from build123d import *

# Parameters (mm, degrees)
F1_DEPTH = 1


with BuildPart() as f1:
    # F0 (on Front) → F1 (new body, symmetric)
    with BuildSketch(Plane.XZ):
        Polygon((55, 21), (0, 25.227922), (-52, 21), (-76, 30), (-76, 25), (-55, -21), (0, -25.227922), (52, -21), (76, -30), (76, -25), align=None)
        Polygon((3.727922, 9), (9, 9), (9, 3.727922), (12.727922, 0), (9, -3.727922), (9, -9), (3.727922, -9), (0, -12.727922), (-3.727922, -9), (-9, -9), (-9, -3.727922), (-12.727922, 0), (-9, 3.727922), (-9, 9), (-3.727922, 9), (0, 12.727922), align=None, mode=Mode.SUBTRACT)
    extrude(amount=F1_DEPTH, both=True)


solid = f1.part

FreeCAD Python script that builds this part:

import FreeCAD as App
import Part
import Sketcher

V = App.Vector
Q = App.Units.Quantity

doc = App.newDocument("Part")
body = doc.addObject("PartDesign::Body", "Body")

# Sketch on XZ plane
sketch1 = doc.addObject("Sketcher::SketchObject", "Sketch")
body.addObject(sketch1)
sketch1.AttachmentSupport = (doc.XZ_Plane, [""])
sketch1.MapMode = "FlatFace"
sketch1.addGeometry([
    Part.LineSegment(V(55, 21, 0), V(0, 25, 0)),  # 0
    Part.LineSegment(V(0, 25, 0), V(-52, 21, 0)),  # 1
    Part.LineSegment(V(-52, 21, 0), V(-76, 30, 0)),  # 2
    Part.LineSegment(V(-76, 30, 0), V(-76, 25, 0)),  # 3
    Part.LineSegment(V(-76, 25, 0), V(-55, -21, 0)),  # 4
    Part.LineSegment(V(-55, -21, 0), V(0, -25, 0)),  # 5
    Part.LineSegment(V(0, -25, 0), V(52, -21, 0)),  # 6
    Part.LineSegment(V(52, -21, 0), V(76, -30, 0)),  # 7
    Part.LineSegment(V(76, -30, 0), V(76, -25, 0)),  # 8
    Part.LineSegment(V(76, -25, 0), V(55, 21, 0)),  # 9
    Part.LineSegment(V(0, 13, 0), V(4, 9, 0)),  # 10
    Part.LineSegment(V(4, 9, 0), V(9, 9, 0)),  # 11
    Part.LineSegment(V(9, 9, 0), V(9, 4, 0)),  # 12
    Part.LineSegment(V(9, 4, 0), V(13, 0, 0)),  # 13
    Part.LineSegment(V(13, 0, 0), V(9, -4, 0)),  # 14
    Part.LineSegment(V(9, -4, 0), V(9, -9, 0)),  # 15
    Part.LineSegment(V(9, -9, 0), V(4, -9, 0)),  # 16
    Part.LineSegment(V(4, -9, 0), V(0, -13, 0)),  # 17
    Part.LineSegment(V(0, -13, 0), V(-4, -9, 0)),  # 18
    Part.LineSegment(V(-4, -9, 0), V(-9, -9, 0)),  # 19
    Part.LineSegment(V(-9, -9, 0), V(-9, -4, 0)),  # 20
    Part.LineSegment(V(-9, -4, 0), V(-13, 0, 0)),  # 21
    Part.LineSegment(V(-13, 0, 0), V(-9, 4, 0)),  # 22
    Part.LineSegment(V(-9, 4, 0), V(-9, 9, 0)),  # 23
    Part.LineSegment(V(-9, 9, 0), V(-4, 9, 0)),  # 24
    Part.LineSegment(V(-4, 9, 0), V(0, 13, 0)),  # 25
], False)
sketch1.addConstraint([
    Sketcher.Constraint("Coincident", 0, 2, 1, 1),
    Sketcher.Constraint("Coincident", 1, 2, 2, 1),
    Sketcher.Constraint("Coincident", 2, 2, 3, 1),
    Sketcher.Constraint("Coincident", 3, 2, 4, 1),
    Sketcher.Constraint("Coincident", 4, 2, 5, 1),
    Sketcher.Constraint("Coincident", 5, 2, 6, 1),
    Sketcher.Constraint("Coincident", 6, 2, 7, 1),
    Sketcher.Constraint("Coincident", 7, 2, 8, 1),
    Sketcher.Constraint("Coincident", 8, 2, 9, 1),
    Sketcher.Constraint("Coincident", 9, 2, 0, 1),
    Sketcher.Constraint("Coincident", 10, 2, 11, 1),
    Sketcher.Constraint("Coincident", 11, 2, 12, 1),
    Sketcher.Constraint("Coincident", 12, 2, 13, 1),
    Sketcher.Constraint("Coincident", 13, 2, 14, 1),
    Sketcher.Constraint("Coincident", 14, 2, 15, 1),
    Sketcher.Constraint("Coincident", 15, 2, 16, 1),
    Sketcher.Constraint("Coincident", 16, 2, 17, 1),
    Sketcher.Constraint("Coincident", 17, 2, 18, 1),
    Sketcher.Constraint("Coincident", 18, 2, 19, 1),
    Sketcher.Constraint("Coincident", 19, 2, 20, 1),
    Sketcher.Constraint("Coincident", 20, 2, 21, 1),
    Sketcher.Constraint("Coincident", 21, 2, 22, 1),
    Sketcher.Constraint("Coincident", 22, 2, 23, 1),
    Sketcher.Constraint("Coincident", 23, 2, 24, 1),
    Sketcher.Constraint("Coincident", 24, 2, 25, 1),
    Sketcher.Constraint("Coincident", 25, 2, 10, 1),
    Sketcher.Constraint("Vertical", 3),
    Sketcher.Constraint("Vertical", 8),
    Sketcher.Constraint("Horizontal", 11),
    Sketcher.Constraint("Vertical", 12),
    Sketcher.Constraint("Vertical", 15),
    Sketcher.Constraint("Horizontal", 16),
    Sketcher.Constraint("Horizontal", 19),
    Sketcher.Constraint("Vertical", 20),
    Sketcher.Constraint("Vertical", 23),
    Sketcher.Constraint("Horizontal", 24),
    Sketcher.Constraint("Symmetric", 0, 2, 5, 2, -1, 1),
    Sketcher.Constraint("Symmetric", 1, 2, 6, 2, -1, 1),
    Sketcher.Constraint("Symmetric", 2, 2, 7, 2, -1, 1),
    Sketcher.Constraint("Symmetric", 4, 2, 9, 2, -1, 1),
    Sketcher.Constraint("Symmetric", 10, 2, 18, 2, -1, 1),
    Sketcher.Constraint("Symmetric", 12, 2, 20, 2, -1, 1),
    Sketcher.Constraint("Symmetric", 13, 2, 21, 2, -1, 1),
    Sketcher.Constraint("Symmetric", 14, 2, 22, 2, -1, 1),
    Sketcher.Constraint("Symmetric", 16, 2, 24, 2, -1, 1),
    Sketcher.Constraint("Symmetric", 17, 2, 25, 2, -1, 1),
    Sketcher.Constraint("Symmetric", 16, 2, 18, 2, -2),
    Sketcher.Constraint("Symmetric", 14, 2, 20, 2, -2),
    Sketcher.Constraint("PointOnObject", 0, 2, -2),
    Sketcher.Constraint("PointOnObject", 13, 2, -1),
    Sketcher.Constraint("PointOnObject", 17, 2, -2),
    Sketcher.Constraint("Parallel", 4, 9),
    Sketcher.Constraint("Parallel", 10, 13),
    Sketcher.Constraint("Perpendicular", 13, 14),
    Sketcher.Constraint("Horizontal", 4, 2, 6, 2),
    Sketcher.Constraint("Equal", 24, 12),
    Sketcher.Constraint("Equal", 10, 13),
    Sketcher.Constraint("DistanceY", 3, 2, 3, 1, Q("5 mm")),
    Sketcher.Constraint("DistanceX", 1, 2, -1, 1, Q("52 mm")),
    Sketcher.Constraint("DistanceY", -1, 1, 1, 2, Q("21 mm")),
    Sketcher.Constraint("DistanceX", 2, 2, -1, 1, Q("76 mm")),
    Sketcher.Constraint("DistanceY", -1, 1, 2, 2, Q("30 mm")),
    Sketcher.Constraint("DistanceX", 4, 2, -1, 1, Q("55 mm")),
    Sketcher.Constraint("DistanceY", -1, 1, 10, 2, Q("9 mm")),
    Sketcher.Constraint("DistanceY", 12, 2, 0, 2, Q("21.5 mm")),
    Sketcher.Constraint("DistanceX", 11, 1, 11, 2, Q("5.272078 mm")),
])
pad1 = doc.addObject("PartDesign::Pad", "Pad")
body.addObject(pad1)
pad1.Profile = sketch1
pad1.Length = 2
pad1.Midplane = True

doc.recompute()
